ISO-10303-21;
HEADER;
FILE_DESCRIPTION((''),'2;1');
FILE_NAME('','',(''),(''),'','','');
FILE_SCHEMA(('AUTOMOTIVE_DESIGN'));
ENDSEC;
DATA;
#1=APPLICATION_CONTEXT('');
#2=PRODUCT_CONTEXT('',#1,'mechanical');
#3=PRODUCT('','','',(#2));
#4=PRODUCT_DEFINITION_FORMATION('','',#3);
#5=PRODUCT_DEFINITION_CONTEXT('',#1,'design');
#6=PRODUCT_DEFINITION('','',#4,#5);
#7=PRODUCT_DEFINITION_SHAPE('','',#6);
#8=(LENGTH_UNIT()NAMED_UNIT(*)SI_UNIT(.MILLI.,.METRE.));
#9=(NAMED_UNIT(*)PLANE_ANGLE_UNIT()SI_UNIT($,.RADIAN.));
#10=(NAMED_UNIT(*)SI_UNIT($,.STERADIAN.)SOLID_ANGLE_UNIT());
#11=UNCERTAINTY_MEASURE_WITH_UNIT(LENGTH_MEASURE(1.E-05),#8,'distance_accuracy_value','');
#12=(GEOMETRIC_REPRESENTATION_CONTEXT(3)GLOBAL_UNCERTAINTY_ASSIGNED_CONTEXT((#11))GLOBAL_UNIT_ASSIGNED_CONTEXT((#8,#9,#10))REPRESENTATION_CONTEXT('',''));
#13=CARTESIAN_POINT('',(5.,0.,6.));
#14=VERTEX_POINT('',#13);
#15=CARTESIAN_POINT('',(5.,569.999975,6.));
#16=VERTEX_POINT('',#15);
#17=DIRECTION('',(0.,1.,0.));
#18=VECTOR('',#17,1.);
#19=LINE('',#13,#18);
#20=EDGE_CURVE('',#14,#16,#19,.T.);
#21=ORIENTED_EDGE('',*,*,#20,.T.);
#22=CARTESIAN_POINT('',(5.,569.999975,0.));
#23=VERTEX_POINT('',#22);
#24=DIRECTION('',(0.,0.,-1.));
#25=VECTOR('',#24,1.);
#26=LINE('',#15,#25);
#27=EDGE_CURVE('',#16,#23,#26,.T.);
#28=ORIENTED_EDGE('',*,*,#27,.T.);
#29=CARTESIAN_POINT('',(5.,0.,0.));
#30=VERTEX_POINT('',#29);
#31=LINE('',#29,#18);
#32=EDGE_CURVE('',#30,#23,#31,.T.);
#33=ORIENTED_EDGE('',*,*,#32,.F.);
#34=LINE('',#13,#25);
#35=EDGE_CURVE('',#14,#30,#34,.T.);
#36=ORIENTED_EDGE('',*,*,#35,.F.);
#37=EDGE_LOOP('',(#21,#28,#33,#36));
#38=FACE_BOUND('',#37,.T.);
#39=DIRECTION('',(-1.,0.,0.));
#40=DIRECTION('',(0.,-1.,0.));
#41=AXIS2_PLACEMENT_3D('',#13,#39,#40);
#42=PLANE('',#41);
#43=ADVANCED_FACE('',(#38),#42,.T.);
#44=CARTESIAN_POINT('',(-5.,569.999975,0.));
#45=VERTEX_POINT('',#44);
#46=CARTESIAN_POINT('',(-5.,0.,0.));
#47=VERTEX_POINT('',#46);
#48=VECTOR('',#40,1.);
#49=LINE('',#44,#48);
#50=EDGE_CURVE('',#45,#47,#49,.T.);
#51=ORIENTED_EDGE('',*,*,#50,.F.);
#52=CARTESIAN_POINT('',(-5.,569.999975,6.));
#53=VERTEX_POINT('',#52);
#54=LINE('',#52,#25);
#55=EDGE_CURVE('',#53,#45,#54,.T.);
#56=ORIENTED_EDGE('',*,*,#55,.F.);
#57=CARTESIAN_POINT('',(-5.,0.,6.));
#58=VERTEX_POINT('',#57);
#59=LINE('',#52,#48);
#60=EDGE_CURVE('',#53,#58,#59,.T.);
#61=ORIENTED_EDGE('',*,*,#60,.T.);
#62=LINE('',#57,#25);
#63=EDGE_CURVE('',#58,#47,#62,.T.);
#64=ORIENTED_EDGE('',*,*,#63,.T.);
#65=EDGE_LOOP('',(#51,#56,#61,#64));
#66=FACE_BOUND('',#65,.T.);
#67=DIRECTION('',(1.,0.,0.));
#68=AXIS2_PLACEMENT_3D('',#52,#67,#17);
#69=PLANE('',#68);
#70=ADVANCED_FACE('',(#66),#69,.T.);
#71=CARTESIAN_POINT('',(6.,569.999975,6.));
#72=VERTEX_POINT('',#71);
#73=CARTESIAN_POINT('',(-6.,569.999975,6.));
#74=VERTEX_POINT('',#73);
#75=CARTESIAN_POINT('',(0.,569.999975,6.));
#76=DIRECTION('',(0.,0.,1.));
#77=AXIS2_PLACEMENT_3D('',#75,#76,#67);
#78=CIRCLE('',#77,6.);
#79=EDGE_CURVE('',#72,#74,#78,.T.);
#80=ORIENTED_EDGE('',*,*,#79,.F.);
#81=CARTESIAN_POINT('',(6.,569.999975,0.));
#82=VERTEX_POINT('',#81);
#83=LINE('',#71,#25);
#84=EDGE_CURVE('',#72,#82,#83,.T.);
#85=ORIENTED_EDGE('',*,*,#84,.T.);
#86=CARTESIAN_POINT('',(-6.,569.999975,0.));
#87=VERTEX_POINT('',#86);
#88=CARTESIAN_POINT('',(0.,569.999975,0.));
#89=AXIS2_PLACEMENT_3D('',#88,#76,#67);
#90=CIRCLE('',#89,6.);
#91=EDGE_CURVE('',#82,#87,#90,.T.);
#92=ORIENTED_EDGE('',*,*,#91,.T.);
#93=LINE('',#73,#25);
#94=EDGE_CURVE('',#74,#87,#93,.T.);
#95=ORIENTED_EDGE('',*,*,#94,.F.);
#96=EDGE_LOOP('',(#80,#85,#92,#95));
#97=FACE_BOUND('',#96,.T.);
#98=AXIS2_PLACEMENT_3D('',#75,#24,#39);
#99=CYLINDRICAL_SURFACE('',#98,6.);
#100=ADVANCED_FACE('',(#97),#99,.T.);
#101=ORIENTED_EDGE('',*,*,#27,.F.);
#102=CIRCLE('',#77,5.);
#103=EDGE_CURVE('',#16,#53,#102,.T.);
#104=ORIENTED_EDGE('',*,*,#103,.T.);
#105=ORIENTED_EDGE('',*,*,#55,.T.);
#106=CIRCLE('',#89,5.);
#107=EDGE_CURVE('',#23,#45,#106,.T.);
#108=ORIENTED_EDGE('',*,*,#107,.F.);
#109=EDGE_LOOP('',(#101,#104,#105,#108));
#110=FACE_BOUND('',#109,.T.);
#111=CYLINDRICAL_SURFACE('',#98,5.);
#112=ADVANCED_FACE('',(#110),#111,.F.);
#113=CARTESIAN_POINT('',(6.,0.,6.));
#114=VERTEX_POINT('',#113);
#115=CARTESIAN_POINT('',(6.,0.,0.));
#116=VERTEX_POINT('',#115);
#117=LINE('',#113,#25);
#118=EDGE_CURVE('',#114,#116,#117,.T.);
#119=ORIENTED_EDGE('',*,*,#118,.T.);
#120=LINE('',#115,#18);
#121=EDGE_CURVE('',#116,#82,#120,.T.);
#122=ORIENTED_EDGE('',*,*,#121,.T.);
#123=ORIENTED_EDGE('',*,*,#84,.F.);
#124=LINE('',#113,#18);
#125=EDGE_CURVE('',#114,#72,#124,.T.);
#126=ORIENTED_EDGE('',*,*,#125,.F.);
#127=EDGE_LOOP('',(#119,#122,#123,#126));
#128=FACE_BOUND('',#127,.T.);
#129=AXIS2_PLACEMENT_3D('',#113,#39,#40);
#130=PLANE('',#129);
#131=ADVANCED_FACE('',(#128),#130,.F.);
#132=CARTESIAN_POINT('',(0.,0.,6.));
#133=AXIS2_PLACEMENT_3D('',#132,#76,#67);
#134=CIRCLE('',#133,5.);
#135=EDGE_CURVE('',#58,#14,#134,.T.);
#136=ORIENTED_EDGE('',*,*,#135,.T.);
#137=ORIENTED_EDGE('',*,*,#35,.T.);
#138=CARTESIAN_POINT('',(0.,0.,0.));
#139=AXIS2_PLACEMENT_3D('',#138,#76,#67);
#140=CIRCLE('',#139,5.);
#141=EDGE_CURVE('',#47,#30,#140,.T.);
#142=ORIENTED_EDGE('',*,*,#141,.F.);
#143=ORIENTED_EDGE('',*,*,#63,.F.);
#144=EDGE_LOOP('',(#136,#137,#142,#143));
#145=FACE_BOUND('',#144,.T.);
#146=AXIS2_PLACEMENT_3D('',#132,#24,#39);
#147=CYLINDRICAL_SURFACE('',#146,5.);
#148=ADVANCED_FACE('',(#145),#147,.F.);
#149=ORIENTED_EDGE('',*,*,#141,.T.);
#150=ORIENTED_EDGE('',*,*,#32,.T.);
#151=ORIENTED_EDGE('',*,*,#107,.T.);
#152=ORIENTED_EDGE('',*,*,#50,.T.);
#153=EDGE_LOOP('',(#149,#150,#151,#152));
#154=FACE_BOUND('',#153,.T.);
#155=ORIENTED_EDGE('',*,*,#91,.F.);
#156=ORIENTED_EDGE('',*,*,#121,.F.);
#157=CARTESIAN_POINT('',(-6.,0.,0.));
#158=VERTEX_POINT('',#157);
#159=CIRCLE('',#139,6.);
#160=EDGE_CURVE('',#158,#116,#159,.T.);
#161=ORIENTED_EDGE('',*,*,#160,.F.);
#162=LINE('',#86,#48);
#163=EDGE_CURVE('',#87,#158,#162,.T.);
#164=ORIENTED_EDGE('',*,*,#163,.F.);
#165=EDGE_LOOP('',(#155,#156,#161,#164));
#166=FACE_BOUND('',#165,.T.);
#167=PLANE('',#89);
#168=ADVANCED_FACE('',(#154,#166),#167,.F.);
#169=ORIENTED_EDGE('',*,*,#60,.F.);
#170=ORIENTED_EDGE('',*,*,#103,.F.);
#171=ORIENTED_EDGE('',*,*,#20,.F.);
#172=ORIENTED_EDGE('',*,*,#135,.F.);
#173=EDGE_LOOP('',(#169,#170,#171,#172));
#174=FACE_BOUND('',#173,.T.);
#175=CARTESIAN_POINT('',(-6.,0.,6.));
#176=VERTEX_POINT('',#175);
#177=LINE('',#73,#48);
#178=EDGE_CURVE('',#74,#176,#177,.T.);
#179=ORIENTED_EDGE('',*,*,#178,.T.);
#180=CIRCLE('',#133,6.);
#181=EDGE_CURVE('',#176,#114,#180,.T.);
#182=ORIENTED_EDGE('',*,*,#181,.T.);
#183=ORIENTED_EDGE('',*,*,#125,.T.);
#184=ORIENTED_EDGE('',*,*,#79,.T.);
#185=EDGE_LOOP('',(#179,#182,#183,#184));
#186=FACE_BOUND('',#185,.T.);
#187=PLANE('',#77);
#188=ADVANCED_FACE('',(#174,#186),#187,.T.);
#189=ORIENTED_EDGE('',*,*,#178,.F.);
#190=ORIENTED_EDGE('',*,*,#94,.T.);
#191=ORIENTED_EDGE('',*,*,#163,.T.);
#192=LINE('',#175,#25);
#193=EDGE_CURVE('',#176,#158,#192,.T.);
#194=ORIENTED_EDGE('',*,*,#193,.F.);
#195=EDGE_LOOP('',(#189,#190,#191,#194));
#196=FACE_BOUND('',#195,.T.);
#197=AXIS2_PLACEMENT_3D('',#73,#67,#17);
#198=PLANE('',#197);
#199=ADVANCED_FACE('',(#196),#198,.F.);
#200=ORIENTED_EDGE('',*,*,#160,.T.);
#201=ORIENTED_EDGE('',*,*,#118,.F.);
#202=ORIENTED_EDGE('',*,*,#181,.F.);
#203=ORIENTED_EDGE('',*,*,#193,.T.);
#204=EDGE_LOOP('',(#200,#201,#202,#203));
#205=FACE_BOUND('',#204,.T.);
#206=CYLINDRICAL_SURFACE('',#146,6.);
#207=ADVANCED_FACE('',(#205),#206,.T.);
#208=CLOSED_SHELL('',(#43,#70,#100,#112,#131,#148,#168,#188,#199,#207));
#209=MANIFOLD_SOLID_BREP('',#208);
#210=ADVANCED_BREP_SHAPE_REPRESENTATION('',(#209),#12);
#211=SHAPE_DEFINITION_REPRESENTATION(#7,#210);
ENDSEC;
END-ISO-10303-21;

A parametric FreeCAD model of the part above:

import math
import FreeCAD as App
import Part
import Sketcher
Q = App.Units.Quantity

doc = App.newDocument("Part")
body = doc.addObject("PartDesign::Body", "Body")

# Sketch on XY plane
sketch1 = body.newObject("Sketcher::SketchObject", "Sketch")
sketch1.AttachmentSupport = (doc.getObject("XY_Plane"), [""])
sketch1.MapMode = "FlatFace"
sketch1.addGeometry(Part.LineSegment(App.Vector(-6, 570, 0), App.Vector(-6, 0, 0)), False)
sketch1.addGeometry(Part.ArcOfCircle(Part.Circle(App.Vector(0, 0, 0), App.Vector(0, 0, 1), 6), math.radians(180), math.radians(360)), False)
sketch1.addGeometry(Part.LineSegment(App.Vector(6, 0, 0), App.Vector(6, 570, 0)), False)
sketch1.addGeometry(Part.ArcOfCircle(Part.Circle(App.Vector(0, 570, 0), App.Vector(0, 0, 1), 6), math.radians(0), math.radians(180)), False)
sketch1.addGeometry(Part.LineSegment(App.Vector(-5, 0, 0), App.Vector(-5, 570, 0)), False)
sketch1.addGeometry(Part.ArcOfCircle(Part.Circle(App.Vector(0, 570, 0), App.Vector(0, 0, 1), 5), math.radians(0), math.radians(180)), False)
sketch1.addGeometry(Part.LineSegment(App.Vector(5, 570, 0), App.Vector(5, 0, 0)), False)
sketch1.addGeometry(Part.ArcOfCircle(Part.Circle(App.Vector(0, 0, 0), App.Vector(0, 0, 1), 5), math.radians(180), math.radians(360)), False)
sketch1.addConstraint(Sketcher.Constraint("Tangent", 0, 2, 1, 1))
sketch1.addConstraint(Sketcher.Constraint("Tangent", 1, 2, 2, 1))
sketch1.addConstraint(Sketcher.Constraint("Tangent", 2, 2, 3, 1))
sketch1.addConstraint(Sketcher.Constraint("Tangent", 3, 2, 0, 1))
sketch1.addConstraint(Sketcher.Constraint("Tangent", 4, 2, 5, 2))
sketch1.addConstraint(Sketcher.Constraint("Tangent", 5, 1, 6, 1))
sketch1.addConstraint(Sketcher.Constraint("Tangent", 6, 2, 7, 2))
sketch1.addConstraint(Sketcher.Constraint("Tangent", 7, 1, 4, 1))
sketch1.addConstraint(Sketcher.Constraint("Vertical", 0))
sketch1.addConstraint(Sketcher.Constraint("Vertical", 2))
sketch1.addConstraint(Sketcher.Constraint("Vertical", 4))
sketch1.addConstraint(Sketcher.Constraint("Vertical", 6))
sketch1.addConstraint(Sketcher.Constraint("Coincident", 1, 3, -1, 1))
sketch1.addConstraint(Sketcher.Constraint("Coincident", 7, 3, -1, 1))
sketch1.addConstraint(Sketcher.Constraint("Horizontal", 5, 3, 2, 2))
sketch1.addConstraint(Sketcher.Constraint("Radius", 1, Q("6 mm")))
sketch1.addConstraint(Sketcher.Constraint("Radius", 5, Q("5 mm")))
sketch1.addConstraint(Sketcher.Constraint("DistanceY", 0, 2, 0, 1, Q("569.999975 mm")))
pad1 = body.newObject("PartDesign::Pad", "Pad")
pad1.Profile = sketch1
pad1.Length = 6

doc.recompute()
